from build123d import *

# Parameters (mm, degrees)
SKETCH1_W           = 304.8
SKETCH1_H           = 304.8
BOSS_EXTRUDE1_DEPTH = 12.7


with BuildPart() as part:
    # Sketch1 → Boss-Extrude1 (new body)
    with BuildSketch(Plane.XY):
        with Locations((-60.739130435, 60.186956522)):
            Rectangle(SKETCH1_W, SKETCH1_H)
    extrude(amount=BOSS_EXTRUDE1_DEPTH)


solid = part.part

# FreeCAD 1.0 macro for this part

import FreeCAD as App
import Part
import Sketcher
Q = App.Units.Quantity

doc = App.newDocument("Part")
body = doc.addObject("PartDesign::Body", "Body")

sketch1 = body.newObject("Sketcher::SketchObject", "Sketch")
sketch1.AttachmentSupport = (doc.getObject("XY_Plane"), [""])
sketch1.MapMode = "FlatFace"
sketch1.addGeometry(Part.LineSegment(App.Vector(-213.13913, 212.586957, 0), App.Vector(-213.13913, -92.213043, 0)), False)
sketch1.addGeometry(Part.LineSegment(App.Vector(-213.13913, -92.213043, 0), App.Vector(91.66087, -92.213043, 0)), False)
sketch1.addGeometry(Part.LineSegment(App.Vector(91.66087, -92.213043, 0), App.Vector(91.66087, 212.586957, 0)), False)
sketch1.addGeometry(Part.LineSegment(App.Vector(91.66087, 212.586957, 0), App.Vector(-213.13913, 212.586957, 0)), False)
sketch1.addConstraint(Sketcher.Constraint("Coincident", 0, 2, 1, 1))
sketch1.addConstraint(Sketcher.Constraint("Coincident", 1, 2, 2, 1))
sketch1.addConstraint(Sketcher.Constraint("Coincident", 2, 2, 3, 1))
sketch1.addConstraint(Sketcher.Constraint("Coincident", 3, 2, 0, 1))
sketch1.addConstraint(Sketcher.Constraint("Vertical", 0))
sketch1.addConstraint(Sketcher.Constraint("Horizontal", 1))
sketch1.addConstraint(Sketcher.Constraint("Vertical", 2))
sketch1.addConstraint(Sketcher.Constraint("Horizontal", 3))
sketch1.addConstraint(Sketcher.Constraint("Equal", 3, 0))
sketch1.addConstraint(Sketcher.Constraint("DistanceX", 1, 1, 1, 2, Q("12 in")))
sketch1.addConstraint(Sketcher.Constraint("DistanceX", 0, 2, -1, 1, Q("213.13913 mm")))
sketch1.addConstraint(Sketcher.Constraint("DistanceY", 0, 2, -1, 1, Q("92.213043 mm")))
pad1 = body.newObject("PartDesign::Pad", "Pad")
pad1.Profile = sketch1
pad1.Length = Q("0.5 in")

doc.recompute()
